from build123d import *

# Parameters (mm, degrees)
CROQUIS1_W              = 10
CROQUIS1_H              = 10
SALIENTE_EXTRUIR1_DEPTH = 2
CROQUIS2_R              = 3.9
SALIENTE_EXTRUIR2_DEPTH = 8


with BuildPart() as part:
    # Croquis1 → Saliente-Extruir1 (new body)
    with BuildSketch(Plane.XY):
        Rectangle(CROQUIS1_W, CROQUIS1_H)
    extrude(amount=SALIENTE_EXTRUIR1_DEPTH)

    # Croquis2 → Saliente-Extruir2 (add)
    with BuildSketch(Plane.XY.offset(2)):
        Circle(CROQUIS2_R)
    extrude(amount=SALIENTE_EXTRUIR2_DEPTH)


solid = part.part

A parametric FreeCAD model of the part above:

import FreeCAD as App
import Part
import Sketcher
from FreeCAD import Vector

doc = App.newDocument("Part")
body = doc.addObject("PartDesign::Body", "Body")

sketch1 = doc.addObject("Sketcher::SketchObject", "Sketch")
body.addObject(sketch1)
sketch1.AttachmentSupport = (doc.XY_Plane, [""])
sketch1.MapMode = "FlatFace"
sketch1.addGeometry([
    Part.LineSegment(Vector(-5, 5, 0), Vector(-5, -5, 0)),
    Part.LineSegment(Vector(-5, -5, 0), Vector(5, -5, 0)),
    Part.LineSegment(Vector(5, -5, 0), Vector(5, 5, 0)),
    Part.LineSegment(Vector(5, 5, 0), Vector(-5, 5, 0)),
], False)
sketch1.addConstraint([
    Sketcher.Constraint("Coincident", 0, 2, 1, 1),
    Sketcher.Constraint("Coincident", 1, 2, 2, 1),
    Sketcher.Constraint("Coincident", 2, 2, 3, 1),
    Sketcher.Constraint("Coincident", 3, 2, 0, 1),
    Sketcher.Constraint("Vertical", 0),
    Sketcher.Constraint("Horizontal", 1),
    Sketcher.Constraint("Vertical", 2),
    Sketcher.Constraint("Horizontal", 3),
    Sketcher.Constraint("Symmetric", 0, 2, 2, 2, -1, 1),
    Sketcher.Constraint("Equal", 3, 0),
    Sketcher.Constraint("DistanceX", 1, 1, 1, 2, 10.0),
])
pad1 = doc.addObject("PartDesign::Pad", "Pad")
body.addObject(pad1)
pad1.Profile = sketch1
pad1.Length = 2

sketch2 = doc.addObject("Sketcher::SketchObject", "Sketch001")
body.addObject(sketch2)
sketch2.AttachmentSupport = (doc.XY_Plane, [""])
sketch2.MapMode = "FlatFace"
sketch2.AttachmentOffset = App.Placement(Vector(0, 0, 2), App.Rotation())
sketch2.addGeometry(Part.Circle(Vector(0, 0, 0), Vector(0, 0, 1), 3.9), False)
sketch2.addConstraint([
    Sketcher.Constraint("Coincident", 0, 3, -1, 1),
    Sketcher.Constraint("Diameter", 0, 7.8),
])
pad2 = doc.addObject("PartDesign::Pad", "Pad001")
body.addObject(pad2)
pad2.Profile = sketch2
pad2.Length = 8

doc.recompute()
